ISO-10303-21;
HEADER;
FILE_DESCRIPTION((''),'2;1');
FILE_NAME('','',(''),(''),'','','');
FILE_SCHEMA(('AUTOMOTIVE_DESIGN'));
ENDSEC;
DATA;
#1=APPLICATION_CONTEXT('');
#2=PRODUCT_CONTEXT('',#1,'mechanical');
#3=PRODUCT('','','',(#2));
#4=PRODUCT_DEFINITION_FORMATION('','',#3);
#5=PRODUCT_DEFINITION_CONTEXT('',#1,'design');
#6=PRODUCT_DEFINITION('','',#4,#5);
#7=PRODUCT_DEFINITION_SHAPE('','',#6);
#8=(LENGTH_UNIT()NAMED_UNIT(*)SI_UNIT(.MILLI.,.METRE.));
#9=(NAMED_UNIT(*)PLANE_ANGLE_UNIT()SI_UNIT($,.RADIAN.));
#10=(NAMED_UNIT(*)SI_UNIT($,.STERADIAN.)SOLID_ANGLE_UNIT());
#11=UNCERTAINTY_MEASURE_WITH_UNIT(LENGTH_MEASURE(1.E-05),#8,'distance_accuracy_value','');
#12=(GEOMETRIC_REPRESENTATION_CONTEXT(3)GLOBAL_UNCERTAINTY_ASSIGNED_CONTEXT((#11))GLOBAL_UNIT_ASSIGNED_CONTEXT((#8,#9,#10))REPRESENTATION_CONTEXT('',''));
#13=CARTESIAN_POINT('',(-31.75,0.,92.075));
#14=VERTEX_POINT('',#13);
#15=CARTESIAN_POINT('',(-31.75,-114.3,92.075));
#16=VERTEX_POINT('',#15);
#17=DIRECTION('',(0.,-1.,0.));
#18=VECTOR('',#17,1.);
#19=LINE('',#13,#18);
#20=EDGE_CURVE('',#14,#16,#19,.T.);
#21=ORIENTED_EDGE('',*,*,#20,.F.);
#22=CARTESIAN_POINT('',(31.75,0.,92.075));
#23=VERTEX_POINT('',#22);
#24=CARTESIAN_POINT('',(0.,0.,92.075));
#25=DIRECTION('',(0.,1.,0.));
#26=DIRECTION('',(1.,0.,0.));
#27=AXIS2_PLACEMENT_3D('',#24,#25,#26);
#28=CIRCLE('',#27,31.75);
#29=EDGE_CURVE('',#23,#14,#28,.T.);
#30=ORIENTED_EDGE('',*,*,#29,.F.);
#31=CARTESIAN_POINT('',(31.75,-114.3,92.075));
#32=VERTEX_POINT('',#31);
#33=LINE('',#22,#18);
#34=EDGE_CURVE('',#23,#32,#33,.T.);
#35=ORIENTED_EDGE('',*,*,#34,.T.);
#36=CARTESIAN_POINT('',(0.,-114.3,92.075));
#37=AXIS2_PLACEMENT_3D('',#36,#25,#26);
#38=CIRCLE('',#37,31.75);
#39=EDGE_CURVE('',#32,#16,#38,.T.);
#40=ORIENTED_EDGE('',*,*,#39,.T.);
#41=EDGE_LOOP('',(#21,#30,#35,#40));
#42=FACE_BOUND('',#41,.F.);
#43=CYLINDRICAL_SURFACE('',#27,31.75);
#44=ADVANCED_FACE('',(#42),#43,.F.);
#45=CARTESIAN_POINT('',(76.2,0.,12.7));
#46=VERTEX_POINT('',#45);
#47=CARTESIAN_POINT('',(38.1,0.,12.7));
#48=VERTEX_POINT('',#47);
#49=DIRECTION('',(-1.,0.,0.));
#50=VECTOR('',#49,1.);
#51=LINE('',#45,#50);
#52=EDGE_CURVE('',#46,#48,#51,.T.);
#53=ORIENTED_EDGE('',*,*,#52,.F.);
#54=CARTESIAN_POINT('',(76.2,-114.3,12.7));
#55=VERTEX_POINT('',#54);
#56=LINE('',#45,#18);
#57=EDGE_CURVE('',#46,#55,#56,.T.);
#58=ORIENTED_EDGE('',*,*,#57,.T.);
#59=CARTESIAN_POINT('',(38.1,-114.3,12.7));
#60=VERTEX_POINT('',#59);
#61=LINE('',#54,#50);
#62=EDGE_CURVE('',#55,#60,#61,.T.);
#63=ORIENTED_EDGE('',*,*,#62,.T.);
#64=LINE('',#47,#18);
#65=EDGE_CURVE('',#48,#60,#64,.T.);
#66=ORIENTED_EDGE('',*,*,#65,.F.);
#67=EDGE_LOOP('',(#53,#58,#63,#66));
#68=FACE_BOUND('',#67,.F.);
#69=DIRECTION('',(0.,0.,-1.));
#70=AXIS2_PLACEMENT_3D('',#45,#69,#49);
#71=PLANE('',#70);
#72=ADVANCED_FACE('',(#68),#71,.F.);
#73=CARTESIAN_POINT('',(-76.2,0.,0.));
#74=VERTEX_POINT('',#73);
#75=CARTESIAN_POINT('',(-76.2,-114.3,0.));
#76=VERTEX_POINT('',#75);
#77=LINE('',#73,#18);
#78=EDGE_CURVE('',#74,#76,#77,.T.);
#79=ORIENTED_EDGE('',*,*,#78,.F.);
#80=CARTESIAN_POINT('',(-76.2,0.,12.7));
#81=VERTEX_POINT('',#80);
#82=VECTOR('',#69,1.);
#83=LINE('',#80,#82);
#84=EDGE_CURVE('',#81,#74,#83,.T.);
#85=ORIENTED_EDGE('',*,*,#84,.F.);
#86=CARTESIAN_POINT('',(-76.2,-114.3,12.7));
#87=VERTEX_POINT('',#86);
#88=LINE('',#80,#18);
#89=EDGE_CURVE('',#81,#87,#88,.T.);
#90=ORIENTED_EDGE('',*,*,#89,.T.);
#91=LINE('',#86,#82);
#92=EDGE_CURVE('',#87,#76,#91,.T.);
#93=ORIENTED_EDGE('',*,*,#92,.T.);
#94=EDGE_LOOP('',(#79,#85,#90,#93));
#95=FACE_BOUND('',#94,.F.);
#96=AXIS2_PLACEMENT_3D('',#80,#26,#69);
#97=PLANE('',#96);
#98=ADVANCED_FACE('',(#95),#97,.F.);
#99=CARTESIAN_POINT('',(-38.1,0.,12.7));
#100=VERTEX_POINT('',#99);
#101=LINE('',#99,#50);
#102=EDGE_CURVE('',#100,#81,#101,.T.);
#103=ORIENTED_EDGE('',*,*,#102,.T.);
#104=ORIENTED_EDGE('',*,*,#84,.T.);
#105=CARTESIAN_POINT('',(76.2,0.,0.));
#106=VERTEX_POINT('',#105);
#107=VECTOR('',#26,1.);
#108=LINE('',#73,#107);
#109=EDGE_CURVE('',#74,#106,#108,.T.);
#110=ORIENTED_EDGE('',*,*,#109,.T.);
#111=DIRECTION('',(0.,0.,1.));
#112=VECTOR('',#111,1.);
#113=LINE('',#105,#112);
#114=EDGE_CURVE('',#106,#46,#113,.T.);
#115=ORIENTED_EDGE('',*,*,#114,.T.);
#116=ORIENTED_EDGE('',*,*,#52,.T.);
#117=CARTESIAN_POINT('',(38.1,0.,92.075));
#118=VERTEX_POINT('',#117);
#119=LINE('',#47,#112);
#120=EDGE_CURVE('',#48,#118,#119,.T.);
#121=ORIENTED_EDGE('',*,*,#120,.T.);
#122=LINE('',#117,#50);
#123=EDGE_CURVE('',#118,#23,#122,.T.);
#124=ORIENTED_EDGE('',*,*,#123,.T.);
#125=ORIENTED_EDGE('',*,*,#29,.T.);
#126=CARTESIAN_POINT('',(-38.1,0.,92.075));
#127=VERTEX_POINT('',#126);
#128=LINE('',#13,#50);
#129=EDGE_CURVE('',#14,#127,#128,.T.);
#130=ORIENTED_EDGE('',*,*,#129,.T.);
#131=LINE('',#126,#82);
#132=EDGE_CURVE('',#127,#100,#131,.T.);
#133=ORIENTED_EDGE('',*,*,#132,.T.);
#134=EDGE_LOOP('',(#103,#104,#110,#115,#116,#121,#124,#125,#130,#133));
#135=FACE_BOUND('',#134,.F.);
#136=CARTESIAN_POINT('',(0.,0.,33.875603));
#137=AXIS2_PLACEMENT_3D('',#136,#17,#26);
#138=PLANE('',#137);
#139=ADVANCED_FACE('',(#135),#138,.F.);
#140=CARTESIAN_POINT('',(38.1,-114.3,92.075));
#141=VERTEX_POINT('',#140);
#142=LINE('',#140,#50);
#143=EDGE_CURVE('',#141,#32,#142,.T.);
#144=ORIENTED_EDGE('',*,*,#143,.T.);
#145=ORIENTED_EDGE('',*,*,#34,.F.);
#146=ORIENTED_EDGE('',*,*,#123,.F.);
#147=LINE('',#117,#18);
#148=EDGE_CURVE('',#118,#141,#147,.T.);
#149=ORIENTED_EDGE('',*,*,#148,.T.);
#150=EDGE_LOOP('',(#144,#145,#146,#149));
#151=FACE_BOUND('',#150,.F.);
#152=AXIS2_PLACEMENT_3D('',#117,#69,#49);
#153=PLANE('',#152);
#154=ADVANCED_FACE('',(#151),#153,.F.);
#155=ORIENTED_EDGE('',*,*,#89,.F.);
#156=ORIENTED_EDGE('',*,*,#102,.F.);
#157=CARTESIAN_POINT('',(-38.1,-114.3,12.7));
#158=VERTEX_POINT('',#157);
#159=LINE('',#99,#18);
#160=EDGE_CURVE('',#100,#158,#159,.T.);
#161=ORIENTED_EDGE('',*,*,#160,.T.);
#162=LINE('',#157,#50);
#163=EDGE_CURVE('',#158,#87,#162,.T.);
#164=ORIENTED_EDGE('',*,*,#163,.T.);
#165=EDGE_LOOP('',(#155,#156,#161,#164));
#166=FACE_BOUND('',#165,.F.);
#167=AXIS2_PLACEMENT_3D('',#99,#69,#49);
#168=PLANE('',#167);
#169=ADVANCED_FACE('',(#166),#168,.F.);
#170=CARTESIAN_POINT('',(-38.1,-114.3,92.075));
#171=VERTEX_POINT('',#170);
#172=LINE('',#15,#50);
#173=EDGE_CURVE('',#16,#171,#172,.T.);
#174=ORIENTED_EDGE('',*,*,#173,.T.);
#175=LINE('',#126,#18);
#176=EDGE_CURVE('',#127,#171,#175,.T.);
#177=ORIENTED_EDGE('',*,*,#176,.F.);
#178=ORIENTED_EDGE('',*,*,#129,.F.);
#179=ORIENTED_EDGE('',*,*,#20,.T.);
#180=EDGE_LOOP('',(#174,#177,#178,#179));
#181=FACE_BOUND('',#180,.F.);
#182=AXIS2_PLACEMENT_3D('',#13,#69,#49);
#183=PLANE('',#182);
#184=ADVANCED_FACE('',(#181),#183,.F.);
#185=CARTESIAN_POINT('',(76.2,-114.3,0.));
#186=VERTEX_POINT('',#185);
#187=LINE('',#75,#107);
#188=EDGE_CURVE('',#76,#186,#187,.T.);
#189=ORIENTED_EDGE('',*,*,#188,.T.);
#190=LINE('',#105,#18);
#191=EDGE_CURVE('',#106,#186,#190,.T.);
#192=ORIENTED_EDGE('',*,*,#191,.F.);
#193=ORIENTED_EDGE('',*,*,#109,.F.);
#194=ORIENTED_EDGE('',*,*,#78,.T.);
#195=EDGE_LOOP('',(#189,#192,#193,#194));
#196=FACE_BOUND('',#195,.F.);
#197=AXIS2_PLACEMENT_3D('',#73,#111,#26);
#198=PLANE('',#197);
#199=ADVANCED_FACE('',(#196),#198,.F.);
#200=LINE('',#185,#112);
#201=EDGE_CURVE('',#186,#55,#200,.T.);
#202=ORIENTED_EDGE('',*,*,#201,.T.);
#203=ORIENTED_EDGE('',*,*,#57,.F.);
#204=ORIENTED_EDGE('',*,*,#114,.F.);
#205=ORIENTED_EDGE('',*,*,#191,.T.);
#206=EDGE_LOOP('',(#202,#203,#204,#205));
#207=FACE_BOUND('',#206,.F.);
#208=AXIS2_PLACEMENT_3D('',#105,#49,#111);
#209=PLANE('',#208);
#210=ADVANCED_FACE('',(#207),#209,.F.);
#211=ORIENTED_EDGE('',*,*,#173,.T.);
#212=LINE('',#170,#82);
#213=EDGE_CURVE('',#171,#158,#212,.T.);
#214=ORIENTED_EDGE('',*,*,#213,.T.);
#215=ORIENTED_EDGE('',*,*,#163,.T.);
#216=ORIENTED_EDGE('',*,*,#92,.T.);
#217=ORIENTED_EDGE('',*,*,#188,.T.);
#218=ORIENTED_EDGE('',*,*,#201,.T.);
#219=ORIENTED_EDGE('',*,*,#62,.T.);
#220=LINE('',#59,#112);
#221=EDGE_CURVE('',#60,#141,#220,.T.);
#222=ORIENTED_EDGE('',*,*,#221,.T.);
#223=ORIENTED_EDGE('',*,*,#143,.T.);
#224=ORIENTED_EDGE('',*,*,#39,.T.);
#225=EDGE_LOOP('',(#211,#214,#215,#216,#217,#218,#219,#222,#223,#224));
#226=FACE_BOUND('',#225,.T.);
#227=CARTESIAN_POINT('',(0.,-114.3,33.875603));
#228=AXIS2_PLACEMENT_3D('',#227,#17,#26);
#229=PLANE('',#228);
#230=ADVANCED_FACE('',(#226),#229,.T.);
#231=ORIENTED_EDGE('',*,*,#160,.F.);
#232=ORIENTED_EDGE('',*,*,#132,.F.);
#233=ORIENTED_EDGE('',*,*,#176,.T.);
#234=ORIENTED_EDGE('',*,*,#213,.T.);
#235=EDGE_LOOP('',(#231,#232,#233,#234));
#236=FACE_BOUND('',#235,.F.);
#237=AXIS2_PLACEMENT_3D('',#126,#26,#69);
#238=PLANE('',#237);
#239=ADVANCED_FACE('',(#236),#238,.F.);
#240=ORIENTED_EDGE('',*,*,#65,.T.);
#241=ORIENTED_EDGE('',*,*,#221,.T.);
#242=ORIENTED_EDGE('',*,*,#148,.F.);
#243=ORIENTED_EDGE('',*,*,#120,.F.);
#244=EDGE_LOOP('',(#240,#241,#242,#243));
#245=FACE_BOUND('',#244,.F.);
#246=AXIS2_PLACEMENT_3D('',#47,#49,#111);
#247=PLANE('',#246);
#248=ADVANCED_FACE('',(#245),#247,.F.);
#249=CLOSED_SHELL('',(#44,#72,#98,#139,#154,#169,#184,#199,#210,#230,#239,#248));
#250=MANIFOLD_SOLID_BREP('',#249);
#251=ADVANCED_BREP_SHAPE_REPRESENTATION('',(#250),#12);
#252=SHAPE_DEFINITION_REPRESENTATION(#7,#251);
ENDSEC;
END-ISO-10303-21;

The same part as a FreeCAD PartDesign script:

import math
import FreeCAD as App
import Part
import Sketcher

V = App.Vector
Q = App.Units.Quantity

doc = App.newDocument("Part")
body = doc.addObject("PartDesign::Body", "Body")

# Sketch on XZ plane
sketch1 = body.newObject("Sketcher::SketchObject", "Sketch")
sketch1.AttachmentSupport = (doc.getObject("XZ_Plane"), [""])
sketch1.MapMode = "FlatFace"
sketch1.addGeometry(Part.LineSegment(V(-76.2, 0, 0), V(76.2, 0, 0)), False)
sketch1.addGeometry(Part.LineSegment(V(76.2, 0, 0), V(76.2, 12.7, 0)), False)
sketch1.addGeometry(Part.LineSegment(V(76.2, 12.7, 0), V(38.1, 12.7, 0)), False)
sketch1.addGeometry(Part.LineSegment(V(38.1, 12.7, 0), V(38.1, 92.075, 0)), False)
sketch1.addGeometry(Part.LineSegment(V(38.1, 92.075, 0), V(31.75, 92.075, 0)), False)
sketch1.addGeometry(Part.ArcOfCircle(Part.Circle(V(0, 92.075, 0), V(0, 0, 1), 31.75), math.radians(180), math.radians(360)), False)
sketch1.addGeometry(Part.LineSegment(V(-31.75, 92.075, 0), V(-38.1, 92.075, 0)), False)
sketch1.addGeometry(Part.LineSegment(V(-38.1, 92.075, 0), V(-38.1, 12.7, 0)), False)
sketch1.addGeometry(Part.LineSegment(V(-38.1, 12.7, 0), V(-76.2, 12.7, 0)), False)
sketch1.addGeometry(Part.LineSegment(V(-76.2, 12.7, 0), V(-76.2, 0, 0)), False)
sketch1.addConstraint(Sketcher.Constraint("Coincident", 0, 2, 1, 1))
sketch1.addConstraint(Sketcher.Constraint("Coincident", 1, 2, 2, 1))
sketch1.addConstraint(Sketcher.Constraint("Coincident", 2, 2, 3, 1))
sketch1.addConstraint(Sketcher.Constraint("Coincident", 3, 2, 4, 1))
sketch1.addConstraint(Sketcher.Constraint("Coincident", 4, 2, 5, 2))
sketch1.addConstraint(Sketcher.Constraint("Coincident", 5, 1, 6, 1))
sketch1.addConstraint(Sketcher.Constraint("Coincident", 6, 2, 7, 1))
sketch1.addConstraint(Sketcher.Constraint("Coincident", 7, 2, 8, 1))
sketch1.addConstraint(Sketcher.Constraint("Coincident", 8, 2, 9, 1))
sketch1.addConstraint(Sketcher.Constraint("Coincident", 9, 2, 0, 1))
sketch1.addConstraint(Sketcher.Constraint("Horizontal", 0))
sketch1.addConstraint(Sketcher.Constraint("Vertical", 1))
sketch1.addConstraint(Sketcher.Constraint("Horizontal", 2))
sketch1.addConstraint(Sketcher.Constraint("Vertical", 3))
sketch1.addConstraint(Sketcher.Constraint("Horizontal", 4))
sketch1.addConstraint(Sketcher.Constraint("Horizontal", 6))
sketch1.addConstraint(Sketcher.Constraint("Vertical", 7))
sketch1.addConstraint(Sketcher.Constraint("Horizontal", 8))
sketch1.addConstraint(Sketcher.Constraint("Vertical", 9))
sketch1.addConstraint(Sketcher.Constraint("Symmetric", 0, 2, 9, 2, -1, 1))
sketch1.addConstraint(Sketcher.Constraint("Symmetric", 4, 2, 5, 1, -2))
sketch1.addConstraint(Sketcher.Constraint("Symmetric", 2, 2, 7, 2, -2))
sketch1.addConstraint(Sketcher.Constraint("Horizontal", 5, 3, 3, 2))
sketch1.addConstraint(Sketcher.Constraint("DistanceX", 0, 1, 0, 2, Q("6 in")))
sketch1.addConstraint(Sketcher.Constraint("Radius", 5, Q("1.25 in")))
sketch1.addConstraint(Sketcher.Constraint("DistanceX", 2, 2, 2, 1, Q("1.5 in")))
sketch1.addConstraint(Sketcher.Constraint("DistanceY", 1, 1, 1, 2, Q("0.5 in")))
sketch1.addConstraint(Sketcher.Constraint("DistanceY", 3, 1, 3, 2, Q("3.125 in")))
pad1 = body.newObject("PartDesign::Pad", "Pad")
pad1.Profile = sketch1
pad1.Length = Q("4.5 in")

doc.recompute()
